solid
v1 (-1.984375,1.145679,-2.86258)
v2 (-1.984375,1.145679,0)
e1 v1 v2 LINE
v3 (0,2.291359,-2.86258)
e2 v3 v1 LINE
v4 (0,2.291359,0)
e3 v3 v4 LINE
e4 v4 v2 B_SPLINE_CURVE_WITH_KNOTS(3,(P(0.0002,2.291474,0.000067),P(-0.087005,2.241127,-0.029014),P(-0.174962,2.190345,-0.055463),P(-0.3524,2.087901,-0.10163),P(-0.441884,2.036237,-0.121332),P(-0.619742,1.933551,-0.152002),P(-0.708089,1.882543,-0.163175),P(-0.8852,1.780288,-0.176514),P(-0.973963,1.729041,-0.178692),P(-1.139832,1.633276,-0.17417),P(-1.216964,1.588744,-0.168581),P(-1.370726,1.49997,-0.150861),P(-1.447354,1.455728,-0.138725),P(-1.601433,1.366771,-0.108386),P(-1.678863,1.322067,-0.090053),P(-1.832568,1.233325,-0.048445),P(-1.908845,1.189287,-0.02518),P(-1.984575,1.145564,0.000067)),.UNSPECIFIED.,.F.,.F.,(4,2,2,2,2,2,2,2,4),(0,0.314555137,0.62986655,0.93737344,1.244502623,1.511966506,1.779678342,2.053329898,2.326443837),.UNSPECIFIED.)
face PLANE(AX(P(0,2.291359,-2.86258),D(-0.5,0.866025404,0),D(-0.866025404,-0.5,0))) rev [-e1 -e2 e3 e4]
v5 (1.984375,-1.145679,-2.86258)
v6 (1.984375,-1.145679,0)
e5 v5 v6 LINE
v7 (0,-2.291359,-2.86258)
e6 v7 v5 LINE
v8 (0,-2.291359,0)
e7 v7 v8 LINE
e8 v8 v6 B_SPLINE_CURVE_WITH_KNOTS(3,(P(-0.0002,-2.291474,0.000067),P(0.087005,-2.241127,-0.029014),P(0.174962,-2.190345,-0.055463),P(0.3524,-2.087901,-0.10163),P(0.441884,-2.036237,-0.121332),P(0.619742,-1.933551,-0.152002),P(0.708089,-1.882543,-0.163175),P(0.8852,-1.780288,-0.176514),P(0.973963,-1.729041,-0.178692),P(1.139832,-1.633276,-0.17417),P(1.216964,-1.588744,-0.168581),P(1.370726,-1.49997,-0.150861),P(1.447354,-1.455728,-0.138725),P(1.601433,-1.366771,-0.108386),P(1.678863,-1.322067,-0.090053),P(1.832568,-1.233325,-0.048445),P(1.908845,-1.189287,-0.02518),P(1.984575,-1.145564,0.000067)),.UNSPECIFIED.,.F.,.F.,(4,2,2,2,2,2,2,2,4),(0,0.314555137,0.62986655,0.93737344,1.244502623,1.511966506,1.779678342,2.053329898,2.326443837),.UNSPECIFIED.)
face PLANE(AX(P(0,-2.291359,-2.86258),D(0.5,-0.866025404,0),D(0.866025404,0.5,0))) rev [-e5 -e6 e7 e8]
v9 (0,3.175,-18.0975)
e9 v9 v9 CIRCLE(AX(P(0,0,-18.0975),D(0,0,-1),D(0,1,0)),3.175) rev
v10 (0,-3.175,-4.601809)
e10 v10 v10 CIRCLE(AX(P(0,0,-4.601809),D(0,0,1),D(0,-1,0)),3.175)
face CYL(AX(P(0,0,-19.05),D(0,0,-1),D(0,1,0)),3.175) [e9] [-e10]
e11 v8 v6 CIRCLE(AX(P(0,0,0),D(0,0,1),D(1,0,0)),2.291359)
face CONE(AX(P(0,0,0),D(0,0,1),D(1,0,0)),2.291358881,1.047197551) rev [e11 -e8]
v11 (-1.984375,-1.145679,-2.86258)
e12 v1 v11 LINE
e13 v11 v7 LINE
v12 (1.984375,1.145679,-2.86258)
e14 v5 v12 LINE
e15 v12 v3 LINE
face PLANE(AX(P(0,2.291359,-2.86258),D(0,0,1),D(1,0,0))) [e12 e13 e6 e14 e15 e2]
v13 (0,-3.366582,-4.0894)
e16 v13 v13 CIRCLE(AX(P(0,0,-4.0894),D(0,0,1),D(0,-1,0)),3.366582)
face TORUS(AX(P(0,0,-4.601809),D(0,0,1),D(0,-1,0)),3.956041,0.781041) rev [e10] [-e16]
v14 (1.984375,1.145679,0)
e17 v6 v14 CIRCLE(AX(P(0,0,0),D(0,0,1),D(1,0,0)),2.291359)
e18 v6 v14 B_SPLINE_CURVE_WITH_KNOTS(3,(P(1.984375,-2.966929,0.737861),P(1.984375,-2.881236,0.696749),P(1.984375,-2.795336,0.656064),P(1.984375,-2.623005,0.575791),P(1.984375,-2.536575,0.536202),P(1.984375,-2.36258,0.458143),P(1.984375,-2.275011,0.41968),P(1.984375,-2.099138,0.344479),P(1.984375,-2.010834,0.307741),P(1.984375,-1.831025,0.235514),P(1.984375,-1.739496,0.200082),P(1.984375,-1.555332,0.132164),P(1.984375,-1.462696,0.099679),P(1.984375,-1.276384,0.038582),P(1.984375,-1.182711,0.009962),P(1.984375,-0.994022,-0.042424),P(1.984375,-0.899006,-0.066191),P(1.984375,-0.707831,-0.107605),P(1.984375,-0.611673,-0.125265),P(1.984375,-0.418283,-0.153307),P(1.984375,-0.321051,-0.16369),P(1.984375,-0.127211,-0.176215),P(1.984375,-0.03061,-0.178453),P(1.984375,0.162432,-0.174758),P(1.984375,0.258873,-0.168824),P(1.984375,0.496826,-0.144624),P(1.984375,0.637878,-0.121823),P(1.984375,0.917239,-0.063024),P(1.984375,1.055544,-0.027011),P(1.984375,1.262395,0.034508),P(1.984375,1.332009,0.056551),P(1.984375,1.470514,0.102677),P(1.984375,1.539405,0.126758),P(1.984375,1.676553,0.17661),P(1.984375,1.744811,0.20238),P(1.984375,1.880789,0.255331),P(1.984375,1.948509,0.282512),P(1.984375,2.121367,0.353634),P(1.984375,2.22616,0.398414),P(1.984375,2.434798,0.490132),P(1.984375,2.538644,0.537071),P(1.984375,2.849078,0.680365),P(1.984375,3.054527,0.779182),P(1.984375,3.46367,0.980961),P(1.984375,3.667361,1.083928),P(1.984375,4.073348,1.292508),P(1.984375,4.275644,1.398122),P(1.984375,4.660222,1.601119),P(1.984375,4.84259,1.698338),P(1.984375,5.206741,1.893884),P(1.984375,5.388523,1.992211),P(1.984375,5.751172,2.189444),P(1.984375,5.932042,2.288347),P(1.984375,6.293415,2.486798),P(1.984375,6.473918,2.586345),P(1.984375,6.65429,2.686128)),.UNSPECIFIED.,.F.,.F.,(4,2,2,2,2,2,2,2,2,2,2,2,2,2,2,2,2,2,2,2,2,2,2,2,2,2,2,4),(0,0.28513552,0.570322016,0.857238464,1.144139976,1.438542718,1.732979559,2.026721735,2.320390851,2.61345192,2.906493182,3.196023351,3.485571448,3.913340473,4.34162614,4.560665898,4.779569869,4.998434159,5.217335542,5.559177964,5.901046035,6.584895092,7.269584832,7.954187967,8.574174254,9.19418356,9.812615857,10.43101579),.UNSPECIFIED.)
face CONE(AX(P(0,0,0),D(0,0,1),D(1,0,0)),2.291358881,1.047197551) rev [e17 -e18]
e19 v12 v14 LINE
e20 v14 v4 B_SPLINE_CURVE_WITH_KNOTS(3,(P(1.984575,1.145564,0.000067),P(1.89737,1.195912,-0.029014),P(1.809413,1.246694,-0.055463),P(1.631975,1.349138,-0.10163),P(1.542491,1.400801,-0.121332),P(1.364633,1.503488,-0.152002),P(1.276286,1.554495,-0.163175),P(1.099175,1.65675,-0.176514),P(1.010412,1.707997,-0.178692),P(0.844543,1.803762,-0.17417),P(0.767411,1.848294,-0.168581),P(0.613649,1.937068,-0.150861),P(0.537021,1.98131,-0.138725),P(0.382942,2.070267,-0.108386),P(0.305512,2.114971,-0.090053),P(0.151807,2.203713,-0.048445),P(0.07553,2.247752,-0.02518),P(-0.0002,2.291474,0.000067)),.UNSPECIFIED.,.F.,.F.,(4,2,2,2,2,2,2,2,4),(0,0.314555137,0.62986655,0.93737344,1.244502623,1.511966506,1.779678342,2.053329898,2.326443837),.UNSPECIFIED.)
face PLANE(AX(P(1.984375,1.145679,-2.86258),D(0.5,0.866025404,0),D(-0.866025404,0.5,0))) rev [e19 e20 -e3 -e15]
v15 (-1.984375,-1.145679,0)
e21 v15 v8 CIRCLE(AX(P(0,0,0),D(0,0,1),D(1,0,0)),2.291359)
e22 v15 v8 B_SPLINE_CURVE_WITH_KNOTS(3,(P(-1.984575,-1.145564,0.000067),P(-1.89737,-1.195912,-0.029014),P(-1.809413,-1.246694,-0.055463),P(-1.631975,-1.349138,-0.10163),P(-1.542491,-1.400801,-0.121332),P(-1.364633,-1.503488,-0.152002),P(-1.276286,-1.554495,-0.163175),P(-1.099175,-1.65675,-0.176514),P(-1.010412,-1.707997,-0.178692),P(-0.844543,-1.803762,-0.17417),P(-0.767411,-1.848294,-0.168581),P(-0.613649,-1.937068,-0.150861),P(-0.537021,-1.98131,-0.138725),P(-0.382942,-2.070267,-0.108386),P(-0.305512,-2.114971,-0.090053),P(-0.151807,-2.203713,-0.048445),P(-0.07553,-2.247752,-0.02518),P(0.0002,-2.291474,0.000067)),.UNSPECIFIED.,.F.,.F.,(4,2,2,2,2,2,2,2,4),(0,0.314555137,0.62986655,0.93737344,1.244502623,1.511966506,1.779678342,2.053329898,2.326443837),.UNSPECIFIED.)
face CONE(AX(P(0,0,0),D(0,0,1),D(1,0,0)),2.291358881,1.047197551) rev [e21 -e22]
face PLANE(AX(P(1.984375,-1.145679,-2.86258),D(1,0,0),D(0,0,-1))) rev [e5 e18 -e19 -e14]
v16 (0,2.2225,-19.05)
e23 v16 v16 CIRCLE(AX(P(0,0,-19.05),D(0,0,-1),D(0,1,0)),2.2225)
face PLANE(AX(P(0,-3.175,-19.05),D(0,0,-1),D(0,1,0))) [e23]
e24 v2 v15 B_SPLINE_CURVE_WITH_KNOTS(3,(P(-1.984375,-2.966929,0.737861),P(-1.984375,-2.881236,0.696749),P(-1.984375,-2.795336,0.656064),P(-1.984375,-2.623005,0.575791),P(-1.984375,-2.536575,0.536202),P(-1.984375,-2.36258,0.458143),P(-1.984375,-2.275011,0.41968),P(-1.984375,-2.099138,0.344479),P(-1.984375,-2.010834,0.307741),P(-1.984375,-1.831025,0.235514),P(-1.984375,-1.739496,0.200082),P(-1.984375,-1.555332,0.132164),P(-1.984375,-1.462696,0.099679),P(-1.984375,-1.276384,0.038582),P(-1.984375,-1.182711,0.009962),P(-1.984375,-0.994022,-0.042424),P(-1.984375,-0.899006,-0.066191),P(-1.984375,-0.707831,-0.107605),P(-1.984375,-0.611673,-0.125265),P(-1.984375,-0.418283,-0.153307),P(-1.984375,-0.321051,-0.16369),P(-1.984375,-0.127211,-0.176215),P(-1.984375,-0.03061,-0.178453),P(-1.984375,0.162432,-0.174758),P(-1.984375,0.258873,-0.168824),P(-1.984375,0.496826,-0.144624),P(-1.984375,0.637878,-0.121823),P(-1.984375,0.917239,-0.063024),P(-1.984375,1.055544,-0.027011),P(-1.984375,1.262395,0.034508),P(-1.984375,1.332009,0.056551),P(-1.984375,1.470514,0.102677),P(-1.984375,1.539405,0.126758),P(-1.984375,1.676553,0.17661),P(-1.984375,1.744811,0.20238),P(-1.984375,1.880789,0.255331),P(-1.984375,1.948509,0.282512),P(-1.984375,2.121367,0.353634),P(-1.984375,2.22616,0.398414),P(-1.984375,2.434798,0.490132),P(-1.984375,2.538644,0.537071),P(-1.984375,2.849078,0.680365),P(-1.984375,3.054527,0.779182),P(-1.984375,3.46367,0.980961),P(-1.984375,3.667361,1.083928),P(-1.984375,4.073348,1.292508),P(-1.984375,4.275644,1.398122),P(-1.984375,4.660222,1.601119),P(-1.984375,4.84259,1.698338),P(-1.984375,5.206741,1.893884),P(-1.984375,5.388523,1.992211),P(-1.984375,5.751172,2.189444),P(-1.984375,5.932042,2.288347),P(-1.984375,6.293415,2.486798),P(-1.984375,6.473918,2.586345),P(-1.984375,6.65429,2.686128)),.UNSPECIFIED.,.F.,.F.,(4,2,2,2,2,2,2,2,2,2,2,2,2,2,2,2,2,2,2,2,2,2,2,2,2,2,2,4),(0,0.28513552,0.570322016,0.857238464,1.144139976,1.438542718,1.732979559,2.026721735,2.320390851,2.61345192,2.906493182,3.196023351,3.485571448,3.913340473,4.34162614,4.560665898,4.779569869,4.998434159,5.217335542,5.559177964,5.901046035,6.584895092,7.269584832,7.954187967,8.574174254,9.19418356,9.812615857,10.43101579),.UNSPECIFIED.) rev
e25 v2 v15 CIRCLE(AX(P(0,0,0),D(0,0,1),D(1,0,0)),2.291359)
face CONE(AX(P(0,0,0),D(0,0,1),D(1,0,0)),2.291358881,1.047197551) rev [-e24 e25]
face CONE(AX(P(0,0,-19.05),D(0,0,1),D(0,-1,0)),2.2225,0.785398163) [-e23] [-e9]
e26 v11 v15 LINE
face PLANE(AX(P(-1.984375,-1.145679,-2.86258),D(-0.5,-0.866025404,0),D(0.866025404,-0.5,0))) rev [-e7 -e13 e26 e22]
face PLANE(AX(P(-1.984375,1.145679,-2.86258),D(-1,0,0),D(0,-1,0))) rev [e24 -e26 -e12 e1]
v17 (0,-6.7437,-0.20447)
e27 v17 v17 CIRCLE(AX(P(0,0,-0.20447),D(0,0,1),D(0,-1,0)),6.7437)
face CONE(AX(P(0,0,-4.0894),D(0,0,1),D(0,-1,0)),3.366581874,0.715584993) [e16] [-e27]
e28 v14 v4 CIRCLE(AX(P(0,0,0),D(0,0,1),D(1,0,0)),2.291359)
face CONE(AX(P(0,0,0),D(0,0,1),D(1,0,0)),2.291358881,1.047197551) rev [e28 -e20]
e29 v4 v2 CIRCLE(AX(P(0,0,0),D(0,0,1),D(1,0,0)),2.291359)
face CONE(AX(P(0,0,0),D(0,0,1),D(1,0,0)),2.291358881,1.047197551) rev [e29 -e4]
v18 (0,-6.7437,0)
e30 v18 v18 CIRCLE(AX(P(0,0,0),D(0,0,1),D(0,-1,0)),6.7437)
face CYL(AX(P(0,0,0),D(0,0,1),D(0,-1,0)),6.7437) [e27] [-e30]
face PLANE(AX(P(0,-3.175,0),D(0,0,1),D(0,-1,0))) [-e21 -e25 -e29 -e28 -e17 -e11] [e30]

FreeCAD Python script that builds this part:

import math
import FreeCAD as App
import Part
import Sketcher

V = App.Vector
Q = App.Units.Quantity


def edges_at(feature, points):
    """Names of the edges that pass closest to the given points."""
    edges = feature.Shape.Edges
    near = lambda p: min(range(len(edges)), key=lambda i: edges[i].distToShape(Part.Vertex(*p))[0])
    return sorted({f"Edge{near(p) + 1}" for p in points})


def add_polygon(sketch, points):
    """Adds a closed chain of lines whose ends are joined by coincident constraints."""
    first, n = sketch.GeometryCount, len(points)
    for a, b in zip(points, points[1:] + points[:1]):
        sketch.addGeometry(Part.LineSegment(App.Vector(*a, 0), App.Vector(*b, 0)), False)
    for i in range(n):
        sketch.addConstraint(Sketcher.Constraint("Coincident", first + i, 2, first + (i + 1) % n, 1))

doc = App.newDocument("Part")
body = doc.addObject("PartDesign::Body", "Body")

# Sketch on YZ plane
sketch1 = body.newObject("Sketcher::SketchObject", "Sketch")
sketch1.AttachmentSupport = (doc.getObject("YZ_Plane"), [""])
sketch1.MapMode = "FlatFace"
add_polygon(sketch1, [(3.175, 0), (0, 0), (0, -19.05), (3.175, -19.05)])  # lines 0-3
sketch1.addConstraint([
    Sketcher.Constraint("Horizontal", 0),
    Sketcher.Constraint("Vertical", 1),
    Sketcher.Constraint("Horizontal", 2),
    Sketcher.Constraint("Vertical", 3),
    Sketcher.Constraint("Coincident", 0, 2, -1, 1),
    Sketcher.Constraint("DistanceY", 1, 2, 1, 1, Q("0.75 in")),
    Sketcher.Constraint("DistanceX", 0, 2, 0, 1, Q("0.125 in")),
])
revolution = body.newObject("PartDesign::Revolution", "Revolution")
revolution.Profile = sketch1
revolution.ReferenceAxis = (sketch1, ["V_Axis"])
revolution.Angle = 360
doc.recompute()

chamfer = body.newObject("PartDesign::Chamfer", "Chamfer")
chamfer.Base = (revolution, edges_at(revolution, [(0, -3.175, -19.05)]))
chamfer.Size = Q("0.0375 in")

# Sketch on YZ plane
sketch2 = body.newObject("Sketcher::SketchObject", "Sketch001")
sketch2.AttachmentSupport = (doc.getObject("YZ_Plane"), [""])
sketch2.MapMode = "FlatFace"
sketch2.addGeometry([
    Part.LineSegment(V(6.7437, -0.20447, 0), V(6.7437, 0, 0)),  # 0
    Part.LineSegment(V(6.7437, 0, 0), V(0, 0, 0)),  # 1
    Part.LineSegment(V(0, 0, 0), V(0, -4.601809, 0)),  # 2
    Part.LineSegment(V(0, -4.601809, 0), V(3.175, -4.601809, 0)),  # 3
    Part.ArcOfCircle(Part.Circle(V(3.956041, -4.601809, 0), V(0, 0, 1), 0.781041), math.radians(139), math.radians(180)),  # 4
    Part.LineSegment(V(3.366582, -4.0894, 0), V(6.7437, -0.20447, 0)),  # 5
], False)
sketch2.addConstraint([
    Sketcher.Constraint("Coincident", 0, 2, 1, 1),
    Sketcher.Constraint("Coincident", 1, 2, 2, 1),
    Sketcher.Constraint("Coincident", 2, 2, 3, 1),
    Sketcher.Constraint("Coincident", 3, 2, 4, 2),
    Sketcher.Constraint("Tangent", 4, 1, 5, 1),
    Sketcher.Constraint("Coincident", 5, 2, 0, 1),
    Sketcher.Constraint("Vertical", 0),
    Sketcher.Constraint("Horizontal", 1),
    Sketcher.Constraint("Vertical", 2),
    Sketcher.Constraint("Horizontal", 3),
    Sketcher.Constraint("Coincident", 1, 2, -1, 1),
    Sketcher.Constraint("Horizontal", 4, 3, 2, 2),
    Sketcher.Constraint("Angle", 5, Q("49 deg")),
    Sketcher.Constraint("DistanceX", 3, 1, 3, 2, Q("0.125 in")),
    Sketcher.Constraint("DistanceX", 1, 2, 1, 1, Q("0.2655 in")),
    Sketcher.Constraint("DistanceY", 4, 1, -1, 1, Q("0.161 in")),
    Sketcher.Constraint("Radius", 4, 0.781041),
])
revolution2 = body.newObject("PartDesign::Revolution", "Revolution001")
revolution2.Profile = sketch2
revolution2.ReferenceAxis = (sketch2, ["V_Axis"])
revolution2.Angle = 360

# Sketch on YZ plane
sketch3 = body.newObject("Sketcher::SketchObject", "Sketch002")
sketch3.AttachmentSupport = (doc.getObject("YZ_Plane"), [""])
sketch3.MapMode = "FlatFace"
add_polygon(sketch3, [(0, -4.601809), (-3.175, -4.601809), (0, -7.667871)])  # lines 0-2
sketch3.addConstraint([
    Sketcher.Constraint("Horizontal", 0),
    Sketcher.Constraint("Vertical", 2),
    Sketcher.Constraint("PointOnObject", 1, 2, -2),
    Sketcher.Constraint("Angle", 1, Q("-44 deg")),
    Sketcher.Constraint("DistanceX", 0, 2, 0, 1, Q("0.125 in")),
    Sketcher.Constraint("DistanceY", 0, 2, -1, 1, 4.601809),
])
revolution3 = body.newObject("PartDesign::Revolution", "Revolution002")
revolution3.Profile = sketch3
revolution3.ReferenceAxis = (sketch3, ["V_Axis"])
revolution3.Angle = 360

# Sketch on XY plane
sketch4 = body.newObject("Sketcher::SketchObject", "Sketch003")
sketch4.AttachmentSupport = (doc.getObject("XY_Plane"), [""])
sketch4.MapMode = "FlatFace"
add_polygon(sketch4, [(0, 2.291359), (-1.984375, 1.145679), (-1.984375, -1.145679), (0, -2.291359), (1.984375, -1.145679), (1.984375, 1.145679)])  # lines 0-5
sketch4.addConstraint([
    Sketcher.Constraint("Vertical", 1),
    Sketcher.Constraint("Vertical", 4),
    Sketcher.Constraint("Symmetric", 0, 2, 3, 2, -1, 1),
    Sketcher.Constraint("Symmetric", 2, 2, 5, 2, -1, 1),
    Sketcher.Constraint("PointOnObject", 2, 2, -2),
    Sketcher.Constraint("Parallel", 2, 5),
    Sketcher.Constraint("Horizontal", 1, 2, 3, 2),
    Sketcher.Constraint("Angle", 0, Q("-150 deg")),
    Sketcher.Constraint("DistanceX", 0, 2, -1, 1, Q("0.078125 in")),
    Sketcher.Constraint("DistanceY", 1, 2, 1, 1, 2.291359),
])
pocket1 = body.newObject("PartDesign::Pocket", "Pocket")
pocket1.Profile = sketch4
pocket1.Length = Q("0.1127 in")

# Sketch on YZ plane
sketch5 = body.newObject("Sketcher::SketchObject", "Sketch004")
sketch5.AttachmentSupport = (doc.getObject("YZ_Plane"), [""])
sketch5.MapMode = "FlatFace"
add_polygon(sketch5, [(0, 0), (-2.291359, 0), (0, -1.322917)])  # lines 0-2
sketch5.addConstraint([
    Sketcher.Constraint("Horizontal", 0),
    Sketcher.Constraint("Vertical", 2),
    Sketcher.Constraint("Coincident", 2, 2, -1, 1),
    Sketcher.Constraint("Angle", 1, Q("-30 deg")),
    Sketcher.Constraint("DistanceX", 0, 2, 0, 1, 2.291359),
])
groove = body.newObject("PartDesign::Groove", "Groove")
groove.Profile = sketch5
groove.ReferenceAxis = (sketch5, ["V_Axis"])
groove.Angle = 360

doc.recompute()
